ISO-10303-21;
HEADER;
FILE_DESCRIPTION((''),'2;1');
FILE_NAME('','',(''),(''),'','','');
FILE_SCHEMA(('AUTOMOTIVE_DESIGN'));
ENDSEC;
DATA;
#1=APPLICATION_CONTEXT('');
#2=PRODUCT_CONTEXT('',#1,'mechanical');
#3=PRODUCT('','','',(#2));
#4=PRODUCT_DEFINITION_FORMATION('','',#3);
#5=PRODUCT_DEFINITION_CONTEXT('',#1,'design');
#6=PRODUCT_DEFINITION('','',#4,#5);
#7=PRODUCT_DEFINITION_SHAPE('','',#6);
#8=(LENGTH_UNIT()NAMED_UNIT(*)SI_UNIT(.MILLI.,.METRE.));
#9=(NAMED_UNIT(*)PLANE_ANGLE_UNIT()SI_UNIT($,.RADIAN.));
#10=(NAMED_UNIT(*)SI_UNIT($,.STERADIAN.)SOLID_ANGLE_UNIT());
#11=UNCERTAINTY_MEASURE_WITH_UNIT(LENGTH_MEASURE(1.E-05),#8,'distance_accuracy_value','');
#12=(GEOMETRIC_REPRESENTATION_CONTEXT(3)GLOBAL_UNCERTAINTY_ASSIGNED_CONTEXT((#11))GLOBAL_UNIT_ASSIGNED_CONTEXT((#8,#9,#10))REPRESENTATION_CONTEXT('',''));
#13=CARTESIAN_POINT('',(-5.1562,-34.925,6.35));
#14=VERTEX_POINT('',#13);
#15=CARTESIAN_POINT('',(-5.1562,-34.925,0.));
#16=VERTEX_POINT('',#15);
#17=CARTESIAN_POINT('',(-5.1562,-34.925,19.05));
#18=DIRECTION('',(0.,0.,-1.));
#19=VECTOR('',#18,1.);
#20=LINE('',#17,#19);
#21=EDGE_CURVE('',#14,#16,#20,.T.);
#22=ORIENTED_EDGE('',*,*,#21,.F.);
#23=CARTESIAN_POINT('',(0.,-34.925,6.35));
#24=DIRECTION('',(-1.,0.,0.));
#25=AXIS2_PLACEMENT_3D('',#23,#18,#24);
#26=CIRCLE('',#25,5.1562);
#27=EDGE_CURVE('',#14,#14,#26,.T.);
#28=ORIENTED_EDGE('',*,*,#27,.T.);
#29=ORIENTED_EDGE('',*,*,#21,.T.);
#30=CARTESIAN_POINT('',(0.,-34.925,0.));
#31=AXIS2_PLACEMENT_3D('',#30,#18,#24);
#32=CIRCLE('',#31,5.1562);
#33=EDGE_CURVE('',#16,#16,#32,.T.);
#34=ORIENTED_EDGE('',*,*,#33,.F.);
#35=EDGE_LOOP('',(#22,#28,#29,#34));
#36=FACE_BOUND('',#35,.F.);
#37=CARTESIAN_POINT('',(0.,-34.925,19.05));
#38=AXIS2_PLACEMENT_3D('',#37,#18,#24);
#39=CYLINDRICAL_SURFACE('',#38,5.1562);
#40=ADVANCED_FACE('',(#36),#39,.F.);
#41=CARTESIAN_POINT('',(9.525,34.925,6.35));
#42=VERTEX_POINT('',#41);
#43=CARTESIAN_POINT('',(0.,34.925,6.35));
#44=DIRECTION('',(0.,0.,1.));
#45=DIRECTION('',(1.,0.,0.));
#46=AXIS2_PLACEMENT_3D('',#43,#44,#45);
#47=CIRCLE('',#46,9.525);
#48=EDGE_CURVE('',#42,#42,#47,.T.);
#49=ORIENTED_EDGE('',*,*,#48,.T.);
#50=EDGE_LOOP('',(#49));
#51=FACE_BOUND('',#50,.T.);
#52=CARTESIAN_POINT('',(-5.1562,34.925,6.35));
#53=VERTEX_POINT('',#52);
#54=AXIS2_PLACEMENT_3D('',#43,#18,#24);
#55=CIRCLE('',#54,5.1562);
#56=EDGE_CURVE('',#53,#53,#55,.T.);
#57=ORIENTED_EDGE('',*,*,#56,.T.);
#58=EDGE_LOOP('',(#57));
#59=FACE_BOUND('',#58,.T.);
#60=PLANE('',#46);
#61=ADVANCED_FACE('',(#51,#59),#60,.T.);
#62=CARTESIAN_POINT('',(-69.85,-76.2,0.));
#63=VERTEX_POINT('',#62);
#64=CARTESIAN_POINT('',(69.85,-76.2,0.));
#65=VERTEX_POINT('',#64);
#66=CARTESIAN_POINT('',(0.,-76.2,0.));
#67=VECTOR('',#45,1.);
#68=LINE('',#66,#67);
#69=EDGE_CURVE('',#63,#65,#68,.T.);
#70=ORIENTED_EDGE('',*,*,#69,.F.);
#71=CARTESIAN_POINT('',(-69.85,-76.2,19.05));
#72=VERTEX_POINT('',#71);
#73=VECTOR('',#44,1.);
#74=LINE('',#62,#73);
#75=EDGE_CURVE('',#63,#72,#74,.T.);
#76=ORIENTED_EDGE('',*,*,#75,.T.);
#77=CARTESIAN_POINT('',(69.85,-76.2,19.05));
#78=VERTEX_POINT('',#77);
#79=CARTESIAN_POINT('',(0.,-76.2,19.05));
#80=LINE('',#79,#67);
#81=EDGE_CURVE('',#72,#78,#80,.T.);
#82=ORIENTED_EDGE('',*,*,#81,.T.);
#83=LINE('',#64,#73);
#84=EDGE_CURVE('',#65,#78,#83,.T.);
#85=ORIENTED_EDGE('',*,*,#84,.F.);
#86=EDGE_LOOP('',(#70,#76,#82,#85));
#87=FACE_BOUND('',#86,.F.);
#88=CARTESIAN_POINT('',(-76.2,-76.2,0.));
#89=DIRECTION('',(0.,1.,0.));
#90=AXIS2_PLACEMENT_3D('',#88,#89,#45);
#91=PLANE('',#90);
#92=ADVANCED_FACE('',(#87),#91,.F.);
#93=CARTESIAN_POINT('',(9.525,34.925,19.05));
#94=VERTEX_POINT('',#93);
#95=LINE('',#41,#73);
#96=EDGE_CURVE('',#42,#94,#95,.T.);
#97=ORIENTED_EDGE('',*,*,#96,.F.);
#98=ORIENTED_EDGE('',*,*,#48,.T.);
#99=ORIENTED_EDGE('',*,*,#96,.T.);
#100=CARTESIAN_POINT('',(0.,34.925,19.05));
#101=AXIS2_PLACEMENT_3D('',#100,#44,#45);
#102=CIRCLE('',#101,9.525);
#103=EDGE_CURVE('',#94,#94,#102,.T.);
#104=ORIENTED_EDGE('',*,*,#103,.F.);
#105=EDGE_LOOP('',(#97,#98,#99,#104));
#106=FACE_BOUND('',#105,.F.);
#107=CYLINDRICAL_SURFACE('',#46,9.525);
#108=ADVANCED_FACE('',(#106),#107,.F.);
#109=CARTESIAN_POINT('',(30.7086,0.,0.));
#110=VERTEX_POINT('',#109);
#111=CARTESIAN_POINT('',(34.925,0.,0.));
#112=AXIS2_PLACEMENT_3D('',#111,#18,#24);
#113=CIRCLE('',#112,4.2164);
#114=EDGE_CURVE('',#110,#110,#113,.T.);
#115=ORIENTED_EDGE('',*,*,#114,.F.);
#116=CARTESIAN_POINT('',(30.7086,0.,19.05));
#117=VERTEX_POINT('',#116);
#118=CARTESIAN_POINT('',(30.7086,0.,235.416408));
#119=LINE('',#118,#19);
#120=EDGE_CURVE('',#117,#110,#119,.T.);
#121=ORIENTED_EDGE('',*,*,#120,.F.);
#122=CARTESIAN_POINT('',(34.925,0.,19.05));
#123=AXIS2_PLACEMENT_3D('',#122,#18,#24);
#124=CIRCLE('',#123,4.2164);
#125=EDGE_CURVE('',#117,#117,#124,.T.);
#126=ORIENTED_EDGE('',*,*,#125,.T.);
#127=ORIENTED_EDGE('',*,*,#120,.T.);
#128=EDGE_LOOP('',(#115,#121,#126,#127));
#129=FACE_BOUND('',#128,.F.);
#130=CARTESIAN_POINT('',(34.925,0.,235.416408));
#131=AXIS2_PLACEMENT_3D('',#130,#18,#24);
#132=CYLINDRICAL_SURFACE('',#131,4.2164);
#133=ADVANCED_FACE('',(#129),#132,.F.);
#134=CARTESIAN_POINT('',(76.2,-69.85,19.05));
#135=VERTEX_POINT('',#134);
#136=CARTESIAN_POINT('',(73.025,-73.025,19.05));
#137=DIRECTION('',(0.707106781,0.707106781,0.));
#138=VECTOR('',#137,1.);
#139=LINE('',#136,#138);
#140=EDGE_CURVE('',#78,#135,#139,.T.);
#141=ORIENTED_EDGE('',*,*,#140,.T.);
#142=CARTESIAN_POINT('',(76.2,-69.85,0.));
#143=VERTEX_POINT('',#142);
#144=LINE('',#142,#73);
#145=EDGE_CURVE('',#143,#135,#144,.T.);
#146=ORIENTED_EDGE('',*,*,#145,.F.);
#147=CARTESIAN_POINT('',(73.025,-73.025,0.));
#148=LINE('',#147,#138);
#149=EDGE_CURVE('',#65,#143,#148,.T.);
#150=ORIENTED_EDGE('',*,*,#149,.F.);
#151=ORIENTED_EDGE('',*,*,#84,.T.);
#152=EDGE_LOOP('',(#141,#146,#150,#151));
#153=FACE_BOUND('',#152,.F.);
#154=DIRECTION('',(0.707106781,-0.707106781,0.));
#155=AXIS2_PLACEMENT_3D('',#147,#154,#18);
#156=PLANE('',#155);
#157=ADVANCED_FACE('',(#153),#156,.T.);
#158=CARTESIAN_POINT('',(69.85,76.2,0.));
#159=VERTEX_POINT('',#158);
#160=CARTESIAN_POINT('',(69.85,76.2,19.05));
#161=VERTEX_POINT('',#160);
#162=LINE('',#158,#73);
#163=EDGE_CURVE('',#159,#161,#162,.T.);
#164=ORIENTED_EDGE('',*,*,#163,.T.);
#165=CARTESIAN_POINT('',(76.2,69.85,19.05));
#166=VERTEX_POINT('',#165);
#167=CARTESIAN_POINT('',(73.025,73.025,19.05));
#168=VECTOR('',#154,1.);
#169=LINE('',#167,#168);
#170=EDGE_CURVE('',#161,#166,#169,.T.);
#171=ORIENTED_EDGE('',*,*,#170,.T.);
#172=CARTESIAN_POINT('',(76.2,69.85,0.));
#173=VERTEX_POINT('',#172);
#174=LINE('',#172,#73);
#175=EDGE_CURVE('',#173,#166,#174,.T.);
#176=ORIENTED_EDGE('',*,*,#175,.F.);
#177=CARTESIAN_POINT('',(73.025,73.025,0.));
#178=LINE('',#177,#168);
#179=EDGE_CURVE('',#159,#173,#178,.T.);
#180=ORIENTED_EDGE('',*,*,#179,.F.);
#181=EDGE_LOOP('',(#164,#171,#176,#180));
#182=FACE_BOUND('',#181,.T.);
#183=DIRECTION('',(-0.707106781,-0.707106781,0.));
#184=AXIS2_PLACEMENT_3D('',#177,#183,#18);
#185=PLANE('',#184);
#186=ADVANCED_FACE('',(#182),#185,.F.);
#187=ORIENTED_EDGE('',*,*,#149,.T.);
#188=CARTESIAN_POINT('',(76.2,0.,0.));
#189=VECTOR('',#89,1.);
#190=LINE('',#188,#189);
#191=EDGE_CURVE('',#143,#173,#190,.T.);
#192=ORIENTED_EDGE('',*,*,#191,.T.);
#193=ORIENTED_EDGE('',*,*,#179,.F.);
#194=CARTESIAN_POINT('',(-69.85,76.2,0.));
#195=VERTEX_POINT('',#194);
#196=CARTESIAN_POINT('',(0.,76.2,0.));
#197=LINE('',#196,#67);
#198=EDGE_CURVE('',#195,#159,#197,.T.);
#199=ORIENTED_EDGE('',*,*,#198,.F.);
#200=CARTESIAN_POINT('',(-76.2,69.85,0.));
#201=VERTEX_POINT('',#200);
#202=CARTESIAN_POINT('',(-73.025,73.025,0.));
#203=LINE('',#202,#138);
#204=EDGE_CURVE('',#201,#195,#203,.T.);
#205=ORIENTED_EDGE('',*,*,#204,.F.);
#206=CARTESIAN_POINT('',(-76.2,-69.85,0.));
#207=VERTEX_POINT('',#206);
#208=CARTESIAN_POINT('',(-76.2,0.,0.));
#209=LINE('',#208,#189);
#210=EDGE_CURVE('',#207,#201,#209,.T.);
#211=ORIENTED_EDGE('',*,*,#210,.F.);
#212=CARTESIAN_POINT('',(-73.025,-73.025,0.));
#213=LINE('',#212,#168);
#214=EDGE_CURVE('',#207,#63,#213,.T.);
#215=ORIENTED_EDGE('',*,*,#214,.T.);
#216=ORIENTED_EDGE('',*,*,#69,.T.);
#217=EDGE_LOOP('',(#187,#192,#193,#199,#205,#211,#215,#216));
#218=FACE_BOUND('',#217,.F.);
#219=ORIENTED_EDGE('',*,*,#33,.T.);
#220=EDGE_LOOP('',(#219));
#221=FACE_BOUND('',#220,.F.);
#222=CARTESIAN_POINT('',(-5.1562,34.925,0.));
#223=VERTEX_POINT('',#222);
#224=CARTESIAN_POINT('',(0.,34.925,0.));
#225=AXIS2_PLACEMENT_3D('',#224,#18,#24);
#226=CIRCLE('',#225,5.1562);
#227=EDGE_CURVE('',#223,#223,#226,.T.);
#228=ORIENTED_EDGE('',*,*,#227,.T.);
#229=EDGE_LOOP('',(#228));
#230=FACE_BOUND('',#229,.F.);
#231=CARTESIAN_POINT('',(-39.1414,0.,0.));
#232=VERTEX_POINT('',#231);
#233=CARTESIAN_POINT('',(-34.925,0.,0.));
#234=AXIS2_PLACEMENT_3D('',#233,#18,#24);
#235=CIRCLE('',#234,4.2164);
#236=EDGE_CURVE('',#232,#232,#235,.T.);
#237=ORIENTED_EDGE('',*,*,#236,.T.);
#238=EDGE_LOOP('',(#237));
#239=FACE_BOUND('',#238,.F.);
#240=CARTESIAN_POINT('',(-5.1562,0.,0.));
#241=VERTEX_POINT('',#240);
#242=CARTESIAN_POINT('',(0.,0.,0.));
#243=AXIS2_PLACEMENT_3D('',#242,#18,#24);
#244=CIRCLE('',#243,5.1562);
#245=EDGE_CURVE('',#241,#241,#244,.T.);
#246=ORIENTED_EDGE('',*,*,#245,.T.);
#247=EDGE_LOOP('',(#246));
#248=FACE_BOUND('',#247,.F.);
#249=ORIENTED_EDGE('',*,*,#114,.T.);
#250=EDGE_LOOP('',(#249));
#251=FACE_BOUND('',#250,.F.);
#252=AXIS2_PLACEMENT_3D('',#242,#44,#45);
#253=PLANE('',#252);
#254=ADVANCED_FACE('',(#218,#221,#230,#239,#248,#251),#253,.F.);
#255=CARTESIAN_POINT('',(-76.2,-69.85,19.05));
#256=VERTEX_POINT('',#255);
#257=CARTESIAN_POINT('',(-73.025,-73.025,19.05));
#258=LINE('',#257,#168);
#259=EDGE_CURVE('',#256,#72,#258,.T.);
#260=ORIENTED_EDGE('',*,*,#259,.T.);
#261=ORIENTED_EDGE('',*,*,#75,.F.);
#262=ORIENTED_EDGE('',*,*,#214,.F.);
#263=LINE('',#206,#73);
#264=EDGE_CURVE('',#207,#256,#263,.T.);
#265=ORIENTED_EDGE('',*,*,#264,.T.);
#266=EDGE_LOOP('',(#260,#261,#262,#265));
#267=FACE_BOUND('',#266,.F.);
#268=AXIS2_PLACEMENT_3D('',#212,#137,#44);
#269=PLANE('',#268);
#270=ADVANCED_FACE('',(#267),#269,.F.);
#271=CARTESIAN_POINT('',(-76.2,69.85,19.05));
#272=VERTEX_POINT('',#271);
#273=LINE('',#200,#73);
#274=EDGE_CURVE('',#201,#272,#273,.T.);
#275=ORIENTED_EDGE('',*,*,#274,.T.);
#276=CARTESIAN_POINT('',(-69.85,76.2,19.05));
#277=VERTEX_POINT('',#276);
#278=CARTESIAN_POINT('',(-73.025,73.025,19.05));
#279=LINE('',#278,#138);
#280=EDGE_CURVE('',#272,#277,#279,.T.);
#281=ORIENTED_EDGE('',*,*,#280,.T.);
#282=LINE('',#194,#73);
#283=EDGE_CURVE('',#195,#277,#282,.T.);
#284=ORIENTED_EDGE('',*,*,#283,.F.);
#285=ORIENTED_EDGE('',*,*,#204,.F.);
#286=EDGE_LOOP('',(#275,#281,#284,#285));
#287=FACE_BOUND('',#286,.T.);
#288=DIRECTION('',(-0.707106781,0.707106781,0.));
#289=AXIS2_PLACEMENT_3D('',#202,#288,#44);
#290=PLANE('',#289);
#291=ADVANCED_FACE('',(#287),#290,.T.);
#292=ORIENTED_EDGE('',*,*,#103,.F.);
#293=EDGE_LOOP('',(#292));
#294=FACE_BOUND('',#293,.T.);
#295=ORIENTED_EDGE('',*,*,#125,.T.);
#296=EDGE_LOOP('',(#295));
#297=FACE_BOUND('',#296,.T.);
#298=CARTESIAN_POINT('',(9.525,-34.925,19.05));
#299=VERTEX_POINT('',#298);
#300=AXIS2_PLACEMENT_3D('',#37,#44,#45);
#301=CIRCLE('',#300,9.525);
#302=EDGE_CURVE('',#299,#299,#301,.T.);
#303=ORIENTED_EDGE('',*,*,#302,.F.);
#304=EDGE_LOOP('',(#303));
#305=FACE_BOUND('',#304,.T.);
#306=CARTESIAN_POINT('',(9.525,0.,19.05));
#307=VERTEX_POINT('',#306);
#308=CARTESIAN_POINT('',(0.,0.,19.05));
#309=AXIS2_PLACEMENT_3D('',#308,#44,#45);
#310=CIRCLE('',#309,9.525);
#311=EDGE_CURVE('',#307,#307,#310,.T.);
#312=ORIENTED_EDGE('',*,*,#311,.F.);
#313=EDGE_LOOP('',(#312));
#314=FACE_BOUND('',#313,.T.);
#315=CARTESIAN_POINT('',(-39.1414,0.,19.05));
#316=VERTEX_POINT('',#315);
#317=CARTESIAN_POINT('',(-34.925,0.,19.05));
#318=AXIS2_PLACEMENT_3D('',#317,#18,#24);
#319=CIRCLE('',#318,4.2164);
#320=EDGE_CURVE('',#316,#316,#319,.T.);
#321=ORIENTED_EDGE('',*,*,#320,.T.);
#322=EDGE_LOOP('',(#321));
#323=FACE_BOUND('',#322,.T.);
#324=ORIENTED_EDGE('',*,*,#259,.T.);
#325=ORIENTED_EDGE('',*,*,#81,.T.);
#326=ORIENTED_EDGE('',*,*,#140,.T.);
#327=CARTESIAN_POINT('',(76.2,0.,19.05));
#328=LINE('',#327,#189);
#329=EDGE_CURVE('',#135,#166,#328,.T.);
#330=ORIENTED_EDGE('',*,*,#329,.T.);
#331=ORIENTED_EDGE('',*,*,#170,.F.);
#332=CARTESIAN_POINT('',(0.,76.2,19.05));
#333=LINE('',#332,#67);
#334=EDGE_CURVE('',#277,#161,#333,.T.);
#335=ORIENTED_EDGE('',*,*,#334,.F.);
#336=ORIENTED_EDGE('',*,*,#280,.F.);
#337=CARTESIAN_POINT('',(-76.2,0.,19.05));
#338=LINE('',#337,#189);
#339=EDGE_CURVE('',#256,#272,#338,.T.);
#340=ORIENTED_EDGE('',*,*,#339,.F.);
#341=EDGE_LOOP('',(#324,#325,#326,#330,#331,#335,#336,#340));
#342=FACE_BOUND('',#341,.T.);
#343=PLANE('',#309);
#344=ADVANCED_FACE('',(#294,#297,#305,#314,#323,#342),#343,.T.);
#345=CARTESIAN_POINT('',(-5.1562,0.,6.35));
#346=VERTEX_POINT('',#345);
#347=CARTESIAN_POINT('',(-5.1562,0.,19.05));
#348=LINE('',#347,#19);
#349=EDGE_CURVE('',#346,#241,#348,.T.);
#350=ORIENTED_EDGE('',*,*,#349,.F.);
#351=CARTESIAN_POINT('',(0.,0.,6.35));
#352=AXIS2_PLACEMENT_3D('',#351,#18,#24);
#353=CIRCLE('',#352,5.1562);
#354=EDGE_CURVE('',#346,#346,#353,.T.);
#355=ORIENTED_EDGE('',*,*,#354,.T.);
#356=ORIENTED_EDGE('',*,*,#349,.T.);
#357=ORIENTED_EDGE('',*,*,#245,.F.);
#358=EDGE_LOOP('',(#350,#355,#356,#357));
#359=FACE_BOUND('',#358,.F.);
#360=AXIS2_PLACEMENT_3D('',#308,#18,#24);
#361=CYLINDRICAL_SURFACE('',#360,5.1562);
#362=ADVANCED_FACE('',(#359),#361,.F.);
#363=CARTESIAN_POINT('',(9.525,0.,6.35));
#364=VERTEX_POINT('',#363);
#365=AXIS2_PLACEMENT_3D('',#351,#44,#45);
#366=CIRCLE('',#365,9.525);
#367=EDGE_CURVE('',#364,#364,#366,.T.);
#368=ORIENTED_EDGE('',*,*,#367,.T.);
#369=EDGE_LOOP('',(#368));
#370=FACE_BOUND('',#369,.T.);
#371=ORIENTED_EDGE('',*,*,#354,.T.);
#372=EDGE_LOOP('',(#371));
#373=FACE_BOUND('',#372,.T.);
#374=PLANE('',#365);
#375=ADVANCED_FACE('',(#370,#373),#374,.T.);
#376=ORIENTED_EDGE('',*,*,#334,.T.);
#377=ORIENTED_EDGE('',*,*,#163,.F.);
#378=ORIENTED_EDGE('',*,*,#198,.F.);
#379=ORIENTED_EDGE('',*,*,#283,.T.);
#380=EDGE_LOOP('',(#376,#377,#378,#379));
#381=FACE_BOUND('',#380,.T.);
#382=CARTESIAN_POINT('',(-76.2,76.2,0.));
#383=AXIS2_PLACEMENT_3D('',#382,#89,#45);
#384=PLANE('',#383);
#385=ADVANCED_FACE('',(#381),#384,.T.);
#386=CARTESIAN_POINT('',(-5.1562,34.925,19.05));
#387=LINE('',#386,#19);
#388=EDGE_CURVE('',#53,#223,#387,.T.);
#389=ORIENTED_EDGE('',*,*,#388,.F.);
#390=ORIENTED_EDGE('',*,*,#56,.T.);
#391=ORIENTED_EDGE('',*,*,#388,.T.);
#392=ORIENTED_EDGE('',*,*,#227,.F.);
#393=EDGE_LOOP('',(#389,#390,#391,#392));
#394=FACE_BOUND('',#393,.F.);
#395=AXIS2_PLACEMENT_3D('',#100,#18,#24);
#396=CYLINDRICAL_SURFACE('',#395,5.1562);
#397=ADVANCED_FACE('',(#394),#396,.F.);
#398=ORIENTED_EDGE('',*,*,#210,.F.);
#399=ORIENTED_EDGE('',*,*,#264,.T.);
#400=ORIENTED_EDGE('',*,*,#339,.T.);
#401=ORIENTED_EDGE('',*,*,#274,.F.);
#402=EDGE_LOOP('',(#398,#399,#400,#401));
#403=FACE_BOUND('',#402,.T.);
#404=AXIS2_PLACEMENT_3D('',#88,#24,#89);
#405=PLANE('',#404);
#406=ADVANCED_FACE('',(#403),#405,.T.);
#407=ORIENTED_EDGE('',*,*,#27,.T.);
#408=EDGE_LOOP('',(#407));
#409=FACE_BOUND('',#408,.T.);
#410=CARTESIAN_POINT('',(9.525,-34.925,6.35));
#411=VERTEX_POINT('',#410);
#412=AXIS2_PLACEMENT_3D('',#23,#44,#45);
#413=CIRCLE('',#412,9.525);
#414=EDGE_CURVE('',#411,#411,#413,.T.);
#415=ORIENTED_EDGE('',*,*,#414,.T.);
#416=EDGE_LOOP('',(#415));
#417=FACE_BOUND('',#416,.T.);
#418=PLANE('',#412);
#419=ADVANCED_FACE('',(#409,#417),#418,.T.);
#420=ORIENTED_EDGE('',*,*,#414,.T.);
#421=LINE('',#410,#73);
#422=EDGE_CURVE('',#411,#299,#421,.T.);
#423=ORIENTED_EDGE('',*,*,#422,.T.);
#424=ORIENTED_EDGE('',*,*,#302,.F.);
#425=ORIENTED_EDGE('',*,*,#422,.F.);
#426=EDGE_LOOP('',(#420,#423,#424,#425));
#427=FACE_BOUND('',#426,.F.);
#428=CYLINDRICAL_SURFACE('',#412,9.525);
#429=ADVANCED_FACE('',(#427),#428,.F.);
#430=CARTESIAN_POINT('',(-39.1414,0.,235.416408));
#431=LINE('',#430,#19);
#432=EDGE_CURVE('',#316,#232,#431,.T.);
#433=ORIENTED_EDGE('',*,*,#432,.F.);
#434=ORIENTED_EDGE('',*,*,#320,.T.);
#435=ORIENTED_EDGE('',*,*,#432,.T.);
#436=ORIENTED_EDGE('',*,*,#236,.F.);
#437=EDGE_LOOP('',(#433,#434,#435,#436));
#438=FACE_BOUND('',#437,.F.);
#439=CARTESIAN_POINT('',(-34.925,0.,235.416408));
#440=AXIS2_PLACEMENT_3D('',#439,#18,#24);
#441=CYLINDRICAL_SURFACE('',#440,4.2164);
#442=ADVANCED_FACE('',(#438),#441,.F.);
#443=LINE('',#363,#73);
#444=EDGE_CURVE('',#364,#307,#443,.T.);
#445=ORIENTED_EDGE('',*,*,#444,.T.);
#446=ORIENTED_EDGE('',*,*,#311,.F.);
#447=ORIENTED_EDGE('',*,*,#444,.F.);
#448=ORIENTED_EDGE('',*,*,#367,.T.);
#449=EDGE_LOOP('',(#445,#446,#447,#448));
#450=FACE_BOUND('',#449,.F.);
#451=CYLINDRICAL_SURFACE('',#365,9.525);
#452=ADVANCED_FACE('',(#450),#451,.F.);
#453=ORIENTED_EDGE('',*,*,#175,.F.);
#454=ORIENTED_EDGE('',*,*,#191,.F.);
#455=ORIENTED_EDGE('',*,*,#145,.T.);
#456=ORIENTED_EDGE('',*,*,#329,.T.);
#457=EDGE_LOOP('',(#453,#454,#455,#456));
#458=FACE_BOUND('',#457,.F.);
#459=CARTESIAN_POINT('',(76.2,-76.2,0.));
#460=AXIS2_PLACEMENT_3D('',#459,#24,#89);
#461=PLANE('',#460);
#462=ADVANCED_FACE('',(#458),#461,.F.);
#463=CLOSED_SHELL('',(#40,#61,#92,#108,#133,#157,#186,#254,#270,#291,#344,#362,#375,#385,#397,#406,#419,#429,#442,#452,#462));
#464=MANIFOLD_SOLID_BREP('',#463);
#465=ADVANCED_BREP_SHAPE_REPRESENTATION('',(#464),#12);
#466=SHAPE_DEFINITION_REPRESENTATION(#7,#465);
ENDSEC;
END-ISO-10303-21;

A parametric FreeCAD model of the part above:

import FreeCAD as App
import Part
import Sketcher
from FreeCAD import Vector
Q = App.Units.Quantity


def edges_at(feature, points):
    """Names of the edges that pass closest to the given points."""
    edges = feature.Shape.Edges
    near = lambda p: min(range(len(edges)), key=lambda i: edges[i].distToShape(Part.Vertex(*p))[0])
    return sorted({f"Edge{near(p) + 1}" for p in points})


def add_polygon(sketch, points):
    """Adds a closed chain of lines whose ends are joined by coincident constraints."""
    first, n = sketch.GeometryCount, len(points)
    for a, b in zip(points, points[1:] + points[:1]):
        sketch.addGeometry(Part.LineSegment(App.Vector(*a, 0), App.Vector(*b, 0)), False)
    for i in range(n):
        sketch.addConstraint(Sketcher.Constraint("Coincident", first + i, 2, first + (i + 1) % n, 1))

doc = App.newDocument("Part")
body = doc.addObject("PartDesign::Body", "Body")

sketch1 = body.newObject("Sketcher::SketchObject", "Sketch")
sketch1.AttachmentSupport = (doc.getObject("XY_Plane"), [""])
sketch1.MapMode = "FlatFace"
add_polygon(sketch1, [(-76, 76), (-76, -76), (76, -76), (76, 76)])
sketch1.addConstraint(Sketcher.Constraint("Vertical", 0))
sketch1.addConstraint(Sketcher.Constraint("Horizontal", 1))
sketch1.addConstraint(Sketcher.Constraint("Vertical", 2))
sketch1.addConstraint(Sketcher.Constraint("Horizontal", 3))
sketch1.addConstraint(Sketcher.Constraint("Symmetric", 0, 2, 2, 2, -1, 1))
sketch1.addConstraint(Sketcher.Constraint("Equal", 3, 0))
sketch1.addConstraint(Sketcher.Constraint("DistanceX", 1, 1, 1, 2, Q("6 in")))
pad1 = body.newObject("PartDesign::Pad", "Pad")
pad1.Profile = sketch1
pad1.Length = Q("0.75 in")

sketch2 = body.newObject("Sketcher::SketchObject", "Sketch001")
sketch2.AttachmentSupport = (doc.getObject("XY_Plane"), [""])
sketch2.MapMode = "FlatFace"
sketch2.AttachmentOffset = App.Placement(Vector(0, 0, 0.75 * 25.4), App.Rotation())
sketch2.addGeometry(Part.Circle(Vector(-34.9, 0, 0), Vector(0, 0, 1), 4.2), False)
sketch2.addGeometry(Part.Circle(Vector(34.9, 0, 0), Vector(0, 0, 1), 4.2), False)
sketch2.addConstraint(Sketcher.Constraint("Equal", 0, 1))
sketch2.addConstraint(Sketcher.Constraint("Symmetric", 0, 3, 1, 3, -1, 1))
sketch2.addConstraint(Sketcher.Constraint("PointOnObject", 0, 3, -1))
sketch2.addConstraint(Sketcher.Constraint("Diameter", 0, Q("0.332 in")))
sketch2.addConstraint(Sketcher.Constraint("DistanceX", 0, 3, 1, 3, Q("2.75 in")))
doc.recompute()
hole = body.newObject("PartDesign::Hole", "Hole")
hole.Profile = sketch2
hole.ThreadType = "None"
hole.Diameter = Q("0.332 in")
hole.DepthType = "ThroughAll"

sketch3 = body.newObject("Sketcher::SketchObject", "Sketch002")
sketch3.AttachmentSupport = (doc.getObject("XY_Plane"), [""])
sketch3.MapMode = "FlatFace"
sketch3.AttachmentOffset = App.Placement(Vector(0, 0, 0.75 * 25.4), App.Rotation())
sketch3.addGeometry(Part.Circle(Vector(0, 35, 0), Vector(0, 0, 1), 5), False)
sketch3.addGeometry(Part.Circle(Vector(0, 0, 0), Vector(0, 0, 1), 5), False)
sketch3.addGeometry(Part.Circle(Vector(0, -35, 0), Vector(0, 0, 1), 5), False)
sketch3.addConstraint(Sketcher.Constraint("Coincident", 1, 3, -1, 1))
sketch3.addConstraint(Sketcher.Constraint("Equal", 0, 1))
sketch3.addConstraint(Sketcher.Constraint("Equal", 1, 2))
sketch3.addConstraint(Sketcher.Constraint("Symmetric", 0, 3, 2, 3, -1, 1))
sketch3.addConstraint(Sketcher.Constraint("PointOnObject", 0, 3, -2))
sketch3.addConstraint(Sketcher.Constraint("Diameter", 0, Q("0.406 in")))
sketch3.addConstraint(Sketcher.Constraint("DistanceY", 2, 3, 0, 3, Q("2.75 in")))
doc.recompute()
hole2 = body.newObject("PartDesign::Hole", "Hole001")
hole2.Profile = sketch3
hole2.ThreadType = "None"
hole2.Diameter = Q("0.406 in")
hole2.DepthType = "ThroughAll"
hole2.HoleCutType = "Counterbore"
hole2.HoleCutDiameter = Q("0.75 in")
hole2.HoleCutDepth = Q("0.5 in")
doc.recompute()

chamfer = body.newObject("PartDesign::Chamfer", "Chamfer")
chamfer.Base = (hole2, edges_at(hole2, [
    (-76.2, 76.2, 9.525),
    (-76.2, -76.2, 9.525),
    (76.2, -76.2, 9.525),
    (76.2, 76.2, 9.525),
]))
chamfer.Size = Q("0.25 in")

doc.recompute()
